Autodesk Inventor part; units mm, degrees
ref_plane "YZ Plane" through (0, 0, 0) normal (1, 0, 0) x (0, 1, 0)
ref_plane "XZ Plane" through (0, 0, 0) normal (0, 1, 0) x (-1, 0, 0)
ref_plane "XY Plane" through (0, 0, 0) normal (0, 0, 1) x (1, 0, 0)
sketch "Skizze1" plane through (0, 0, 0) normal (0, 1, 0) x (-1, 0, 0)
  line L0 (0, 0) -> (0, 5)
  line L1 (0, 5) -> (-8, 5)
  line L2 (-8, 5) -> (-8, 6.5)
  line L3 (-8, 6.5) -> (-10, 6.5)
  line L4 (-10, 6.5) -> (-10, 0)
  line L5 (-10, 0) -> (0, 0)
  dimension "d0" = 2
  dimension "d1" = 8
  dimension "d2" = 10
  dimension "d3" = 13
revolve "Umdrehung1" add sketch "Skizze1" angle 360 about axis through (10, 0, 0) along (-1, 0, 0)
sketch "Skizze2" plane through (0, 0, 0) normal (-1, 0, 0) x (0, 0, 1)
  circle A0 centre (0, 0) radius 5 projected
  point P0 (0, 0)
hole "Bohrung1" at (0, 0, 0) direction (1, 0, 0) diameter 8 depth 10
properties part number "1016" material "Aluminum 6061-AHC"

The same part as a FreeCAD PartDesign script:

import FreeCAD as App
import Part
import Sketcher

V = App.Vector
Q = App.Units.Quantity


def add_polygon(sketch, points):
    """Adds a closed chain of lines whose ends are joined by coincident constraints."""
    first, n = sketch.GeometryCount, len(points)
    for a, b in zip(points, points[1:] + points[:1]):
        sketch.addGeometry(Part.LineSegment(App.Vector(*a, 0), App.Vector(*b, 0)), False)
    for i in range(n):
        sketch.addConstraint(Sketcher.Constraint("Coincident", first + i, 2, first + (i + 1) % n, 1))

doc = App.newDocument("Part")
params = doc.addObject("Spreadsheet::Sheet", "Params")
for row, (alias, value) in enumerate([
    ("sketch1_width", "10 mm"),
    ("sketch1_width2", "8 mm"),
    ("sketch1_height", "5 mm"),
    ("sketch1_height2", "1.5 mm"),
    ("revolution_angle", "360 deg"),
    ("sketch2_diameter", "8 mm"),
    ("hole_diameter", "8 mm"),
    ("hole_depth", "10 mm"),
], start=1):
    params.set(f"A{row}", alias)
    params.set(f"B{row}", "=" + value)
    params.setAlias(f"B{row}", alias)

body = doc.addObject("PartDesign::Body", "Body")

sketch1 = body.newObject("Sketcher::SketchObject", "Sketch")
sketch1.AttachmentSupport = (doc.getObject("XZ_Plane"), [""])
sketch1.MapMode = "FlatFace"
add_polygon(sketch1, [(10, 0), (0, 0), (0, 5), (8, 5), (8, 6.5), (10, 6.5)])
sketch1.addConstraint([
    Sketcher.Constraint("Horizontal", 0),
    Sketcher.Constraint("Vertical", 1),
    Sketcher.Constraint("Horizontal", 2),
    Sketcher.Constraint("Vertical", 3),
    Sketcher.Constraint("Horizontal", 4),
    Sketcher.Constraint("Vertical", 5),
    Sketcher.Constraint("Coincident", 0, 2, -1, 1),
    Sketcher.Constraint("DistanceX", 0, 2, 0, 1, Q("10 mm")),
    Sketcher.Constraint("DistanceX", 2, 1, 2, 2, Q("8 mm")),
    Sketcher.Constraint("DistanceY", 1, 1, 1, 2, Q("5 mm")),
    Sketcher.Constraint("DistanceY", 3, 1, 3, 2, Q("1.5 mm")),
])
sketch1.setExpression("Constraints[13]", "Params.sketch1_width")
sketch1.setExpression("Constraints[14]", "Params.sketch1_width2")
sketch1.setExpression("Constraints[15]", "Params.sketch1_height")
sketch1.setExpression("Constraints[16]", "Params.sketch1_height2")
revolution = body.newObject("PartDesign::Revolution", "Revolution")
revolution.Profile = sketch1
revolution.ReferenceAxis = (sketch1, ["H_Axis"])
revolution.setExpression("Angle", "Params.revolution_angle")

sketch2 = body.newObject("Sketcher::SketchObject", "Sketch001")
sketch2.AttachmentSupport = (doc.getObject("YZ_Plane"), [""])
sketch2.MapMode = "FlatFace"
sketch2.addGeometry(Part.Circle(V(0, 0, 0), V(0, 0, 1), 4), False)
sketch2.addConstraint([
    Sketcher.Constraint("Coincident", 0, 3, -1, 1),
    Sketcher.Constraint("Diameter", 0, Q("8 mm")),
])
sketch2.setExpression("Constraints[1]", "Params.sketch2_diameter")
doc.recompute()
hole = body.newObject("PartDesign::Hole", "Hole")
hole.Profile = sketch2
hole.ThreadType = "None"
hole.setExpression("Diameter", "Params.hole_diameter")
hole.DepthType = "Dimension"
hole.setExpression("Depth", "Params.hole_depth")
hole.DrillPoint = "Flat"
hole.Reversed = True

doc.recompute()
